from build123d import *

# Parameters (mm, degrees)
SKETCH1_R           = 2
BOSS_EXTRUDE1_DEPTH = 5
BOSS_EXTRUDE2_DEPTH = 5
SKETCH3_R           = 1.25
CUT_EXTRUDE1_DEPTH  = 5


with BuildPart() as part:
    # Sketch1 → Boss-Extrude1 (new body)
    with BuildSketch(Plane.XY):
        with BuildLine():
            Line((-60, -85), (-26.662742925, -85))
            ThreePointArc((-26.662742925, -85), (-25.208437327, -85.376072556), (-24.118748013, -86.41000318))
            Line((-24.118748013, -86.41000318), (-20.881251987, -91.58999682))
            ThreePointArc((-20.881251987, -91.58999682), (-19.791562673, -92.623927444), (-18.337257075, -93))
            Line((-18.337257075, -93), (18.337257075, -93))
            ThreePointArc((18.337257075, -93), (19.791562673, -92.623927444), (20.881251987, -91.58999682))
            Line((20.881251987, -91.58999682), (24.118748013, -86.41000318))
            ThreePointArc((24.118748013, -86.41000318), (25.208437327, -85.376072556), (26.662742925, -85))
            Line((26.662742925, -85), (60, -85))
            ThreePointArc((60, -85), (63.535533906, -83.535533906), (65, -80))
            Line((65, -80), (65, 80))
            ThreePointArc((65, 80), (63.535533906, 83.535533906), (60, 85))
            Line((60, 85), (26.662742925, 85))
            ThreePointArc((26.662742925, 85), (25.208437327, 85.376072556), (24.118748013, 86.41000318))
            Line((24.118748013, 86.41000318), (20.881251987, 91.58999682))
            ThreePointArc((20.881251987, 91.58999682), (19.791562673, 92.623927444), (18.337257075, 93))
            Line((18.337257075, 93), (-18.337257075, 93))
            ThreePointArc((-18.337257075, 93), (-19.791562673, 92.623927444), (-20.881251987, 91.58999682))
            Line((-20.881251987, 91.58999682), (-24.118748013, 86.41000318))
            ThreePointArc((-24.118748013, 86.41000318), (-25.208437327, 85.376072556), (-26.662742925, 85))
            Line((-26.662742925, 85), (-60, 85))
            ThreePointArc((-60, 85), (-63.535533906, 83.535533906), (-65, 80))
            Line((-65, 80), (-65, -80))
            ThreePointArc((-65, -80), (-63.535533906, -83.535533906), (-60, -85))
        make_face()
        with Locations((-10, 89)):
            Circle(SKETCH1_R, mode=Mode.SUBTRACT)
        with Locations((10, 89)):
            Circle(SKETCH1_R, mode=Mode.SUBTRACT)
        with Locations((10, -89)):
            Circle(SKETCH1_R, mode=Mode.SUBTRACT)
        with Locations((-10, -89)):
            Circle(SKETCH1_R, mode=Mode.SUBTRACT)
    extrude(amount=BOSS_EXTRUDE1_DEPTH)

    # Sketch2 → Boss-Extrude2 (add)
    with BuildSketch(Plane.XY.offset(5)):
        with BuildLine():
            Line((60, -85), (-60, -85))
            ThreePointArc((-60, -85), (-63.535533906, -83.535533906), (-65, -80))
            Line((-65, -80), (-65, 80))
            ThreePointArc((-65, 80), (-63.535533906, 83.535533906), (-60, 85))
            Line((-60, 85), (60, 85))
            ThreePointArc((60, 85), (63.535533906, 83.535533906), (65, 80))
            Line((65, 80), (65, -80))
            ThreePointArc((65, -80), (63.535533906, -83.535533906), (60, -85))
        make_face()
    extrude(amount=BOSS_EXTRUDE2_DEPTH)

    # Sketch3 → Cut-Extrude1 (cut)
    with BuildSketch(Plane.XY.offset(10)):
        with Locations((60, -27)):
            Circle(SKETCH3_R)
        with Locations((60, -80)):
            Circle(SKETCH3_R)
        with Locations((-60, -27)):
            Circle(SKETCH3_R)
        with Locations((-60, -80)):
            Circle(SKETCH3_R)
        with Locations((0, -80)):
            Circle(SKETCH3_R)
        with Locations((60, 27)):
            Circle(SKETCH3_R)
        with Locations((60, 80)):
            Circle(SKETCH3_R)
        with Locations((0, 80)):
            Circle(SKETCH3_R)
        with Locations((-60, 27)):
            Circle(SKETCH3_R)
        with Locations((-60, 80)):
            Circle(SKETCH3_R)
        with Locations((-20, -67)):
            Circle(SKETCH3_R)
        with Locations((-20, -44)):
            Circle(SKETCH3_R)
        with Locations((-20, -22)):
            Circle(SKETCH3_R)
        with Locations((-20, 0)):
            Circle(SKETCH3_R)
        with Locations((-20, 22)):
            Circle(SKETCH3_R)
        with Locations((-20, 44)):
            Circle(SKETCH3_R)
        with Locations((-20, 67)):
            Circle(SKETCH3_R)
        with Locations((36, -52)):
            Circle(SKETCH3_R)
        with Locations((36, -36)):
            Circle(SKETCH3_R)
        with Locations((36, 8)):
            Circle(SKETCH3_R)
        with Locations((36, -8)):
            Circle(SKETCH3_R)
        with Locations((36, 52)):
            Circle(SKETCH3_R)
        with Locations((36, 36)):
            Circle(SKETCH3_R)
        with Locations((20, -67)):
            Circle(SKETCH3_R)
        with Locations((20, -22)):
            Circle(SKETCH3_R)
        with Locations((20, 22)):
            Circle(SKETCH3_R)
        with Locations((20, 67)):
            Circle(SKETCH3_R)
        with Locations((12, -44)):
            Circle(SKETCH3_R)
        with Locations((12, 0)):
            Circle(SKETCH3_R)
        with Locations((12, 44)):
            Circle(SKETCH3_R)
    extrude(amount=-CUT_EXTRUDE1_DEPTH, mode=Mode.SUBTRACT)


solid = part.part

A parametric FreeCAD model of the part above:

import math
import FreeCAD as App
import Part
import Sketcher

doc = App.newDocument("Part")
body = doc.addObject("PartDesign::Body", "Body")

# Sketch on XY plane
sketch1 = doc.addObject("Sketcher::SketchObject", "Sketch")
body.addObject(sketch1)
sketch1.AttachmentSupport = (doc.XY_Plane, [""])
sketch1.MapMode = "FlatFace"
sketch1.addGeometry([
    Part.LineSegment(App.Vector(-60, -85, 0), App.Vector(-26.7, -85, 0)),  # 0
    Part.ArcOfCircle(Part.Circle(App.Vector(-26.7, -88, 0), App.Vector(0, 0, 1), 3), math.radians(32), math.radians(90)),  # 1
    Part.LineSegment(App.Vector(-24.1, -86.4, 0), App.Vector(-20.9, -91.6, 0)),  # 2
    Part.ArcOfCircle(Part.Circle(App.Vector(-18.3, -90, 0), App.Vector(0, 0, 1), 3), math.radians(-148), math.radians(-90)),  # 3
    Part.LineSegment(App.Vector(-18.3, -93, 0), App.Vector(18.3, -93, 0)),  # 4
    Part.ArcOfCircle(Part.Circle(App.Vector(18.3, -90, 0), App.Vector(0, 0, 1), 3), math.radians(-90), math.radians(-32)),  # 5
    Part.LineSegment(App.Vector(20.9, -91.6, 0), App.Vector(24.1, -86.4, 0)),  # 6
    Part.ArcOfCircle(Part.Circle(App.Vector(26.7, -88, 0), App.Vector(0, 0, 1), 3), math.radians(90), math.radians(148)),  # 7
    Part.LineSegment(App.Vector(26.7, -85, 0), App.Vector(60, -85, 0)),  # 8
    Part.ArcOfCircle(Part.Circle(App.Vector(60, -80, 0), App.Vector(0, 0, 1), 5), math.radians(-90), math.radians(0)),  # 9
    Part.LineSegment(App.Vector(65, -80, 0), App.Vector(65, 80, 0)),  # 10
    Part.ArcOfCircle(Part.Circle(App.Vector(60, 80, 0), App.Vector(0, 0, 1), 5), math.radians(0), math.radians(90)),  # 11
    Part.LineSegment(App.Vector(60, 85, 0), App.Vector(26.7, 85, 0)),  # 12
    Part.ArcOfCircle(Part.Circle(App.Vector(26.7, 88, 0), App.Vector(0, 0, 1), 3), math.radians(-148), math.radians(-90)),  # 13
    Part.LineSegment(App.Vector(24.1, 86.4, 0), App.Vector(20.9, 91.6, 0)),  # 14
    Part.ArcOfCircle(Part.Circle(App.Vector(18.3, 90, 0), App.Vector(0, 0, 1), 3), math.radians(32), math.radians(90)),  # 15
    Part.LineSegment(App.Vector(18.3, 93, 0), App.Vector(-18.3, 93, 0)),  # 16
    Part.ArcOfCircle(Part.Circle(App.Vector(-18.3, 90, 0), App.Vector(0, 0, 1), 3), math.radians(90), math.radians(148)),  # 17
    Part.LineSegment(App.Vector(-20.9, 91.6, 0), App.Vector(-24.1, 86.4, 0)),  # 18
    Part.ArcOfCircle(Part.Circle(App.Vector(-26.7, 88, 0), App.Vector(0, 0, 1), 3), math.radians(-90), math.radians(-32)),  # 19
    Part.LineSegment(App.Vector(-26.7, 85, 0), App.Vector(-60, 85, 0)),  # 20
    Part.ArcOfCircle(Part.Circle(App.Vector(-60, 80, 0), App.Vector(0, 0, 1), 5), math.radians(90), math.radians(180)),  # 21
    Part.LineSegment(App.Vector(-65, 80, 0), App.Vector(-65, -80, 0)),  # 22
    Part.ArcOfCircle(Part.Circle(App.Vector(-60, -80, 0), App.Vector(0, 0, 1), 5), math.radians(180), math.radians(270)),  # 23
    Part.Circle(App.Vector(-10, -89, 0), App.Vector(0, 0, 1), 2),  # 24
    Part.Circle(App.Vector(10, -89, 0), App.Vector(0, 0, 1), 2),  # 25
    Part.Circle(App.Vector(-10, 89, 0), App.Vector(0, 0, 1), 2),  # 26
    Part.Circle(App.Vector(10, 89, 0), App.Vector(0, 0, 1), 2),  # 27
], False)
sketch1.addConstraint([
    Sketcher.Constraint("Tangent", 0, 2, 1, 2),
    Sketcher.Constraint("Tangent", 1, 1, 2, 1),
    Sketcher.Constraint("Tangent", 2, 2, 3, 1),
    Sketcher.Constraint("Tangent", 3, 2, 4, 1),
    Sketcher.Constraint("Tangent", 4, 2, 5, 1),
    Sketcher.Constraint("Tangent", 5, 2, 6, 1),
    Sketcher.Constraint("Tangent", 6, 2, 7, 2),
    Sketcher.Constraint("Tangent", 7, 1, 8, 1),
    Sketcher.Constraint("Tangent", 8, 2, 9, 1),
    Sketcher.Constraint("Tangent", 9, 2, 10, 1),
    Sketcher.Constraint("Tangent", 10, 2, 11, 1),
    Sketcher.Constraint("Tangent", 11, 2, 12, 1),
    Sketcher.Constraint("Tangent", 12, 2, 13, 2),
    Sketcher.Constraint("Tangent", 13, 1, 14, 1),
    Sketcher.Constraint("Tangent", 14, 2, 15, 1),
    Sketcher.Constraint("Tangent", 15, 2, 16, 1),
    Sketcher.Constraint("Tangent", 16, 2, 17, 1),
    Sketcher.Constraint("Tangent", 17, 2, 18, 1),
    Sketcher.Constraint("Tangent", 18, 2, 19, 2),
    Sketcher.Constraint("Tangent", 19, 1, 20, 1),
    Sketcher.Constraint("Tangent", 20, 2, 21, 1),
    Sketcher.Constraint("Tangent", 21, 2, 22, 1),
    Sketcher.Constraint("Tangent", 22, 2, 23, 1),
    Sketcher.Constraint("Tangent", 23, 2, 0, 1),
    Sketcher.Constraint("Horizontal", 0),
    Sketcher.Constraint("Horizontal", 4),
    Sketcher.Constraint("Horizontal", 8),
    Sketcher.Constraint("Vertical", 10),
    Sketcher.Constraint("Horizontal", 12),
    Sketcher.Constraint("Horizontal", 16),
    Sketcher.Constraint("Horizontal", 20),
    Sketcher.Constraint("Vertical", 22),
    Sketcher.Constraint("Equal", 1, 3),
    Sketcher.Constraint("Equal", 3, 5),
    Sketcher.Constraint("Equal", 5, 7),
    Sketcher.Constraint("Equal", 9, 11),
    Sketcher.Constraint("Equal", 7, 13),
    Sketcher.Constraint("Equal", 13, 15),
    Sketcher.Constraint("Equal", 15, 17),
    Sketcher.Constraint("Equal", 17, 19),
    Sketcher.Constraint("Equal", 11, 21),
    Sketcher.Constraint("Equal", 21, 23),
    Sketcher.Constraint("Equal", 24, 25),
    Sketcher.Constraint("Equal", 25, 26),
    Sketcher.Constraint("Equal", 26, 27),
    Sketcher.Constraint("Symmetric", 1, 3, 13, 3, -1, 1),
    Sketcher.Constraint("Symmetric", 3, 3, 15, 3, -1, 1),
    Sketcher.Constraint("Symmetric", 7, 3, 19, 3, -1, 1),
    Sketcher.Constraint("Symmetric", 25, 3, 26, 3, -1, 1),
    Sketcher.Constraint("Symmetric", 24, 3, 27, 3, -1, 1),
    Sketcher.Constraint("Symmetric", 1, 3, 7, 3, -2),
    Sketcher.Constraint("Symmetric", 24, 3, 25, 3, -2),
    Sketcher.Constraint("Parallel", 6, 18),
    Sketcher.Constraint("Horizontal", 2, 2, 5, 2),
    Sketcher.Constraint("Equal", 0, 8),
    Sketcher.Constraint("Diameter", 24, 4.0),
    Sketcher.Constraint("Radius", 1, 3.0),
    Sketcher.Constraint("Radius", 9, 5.0),
    Sketcher.Constraint("DistanceY", 10, 1, 10, 2, 160.0),
    Sketcher.Constraint("DistanceY", 3, 3, -1, 1, 90.0),
    Sketcher.Constraint("DistanceX", -1, 1, 9, 3, 60.0),
    Sketcher.Constraint("DistanceX", 24, 3, -1, 1, 10.0),
    Sketcher.Constraint("DistanceY", 24, 3, -1, 1, 89.0),
    Sketcher.Constraint("DistanceX", 1, 3, 5, 3, 45.0),
    Sketcher.Constraint("DistanceX", 0, 1, 0, 2, 33.337257),
])
pad1 = doc.addObject("PartDesign::Pad", "Pad")
body.addObject(pad1)
pad1.Profile = sketch1
pad1.Length = 5

# Sketch on XY plane
sketch2 = doc.addObject("Sketcher::SketchObject", "Sketch001")
body.addObject(sketch2)
sketch2.AttachmentSupport = (doc.XY_Plane, [""])
sketch2.MapMode = "FlatFace"
sketch2.AttachmentOffset = App.Placement(App.Vector(0, 0, 5), App.Rotation())
sketch2.addGeometry([
    Part.LineSegment(App.Vector(-60, -85, 0), App.Vector(60, -85, 0)),  # 0
    Part.ArcOfCircle(Part.Circle(App.Vector(60, -80, 0), App.Vector(0, 0, 1), 5), math.radians(-90), math.radians(0)),  # 1
    Part.LineSegment(App.Vector(65, -80, 0), App.Vector(65, 80, 0)),  # 2
    Part.ArcOfCircle(Part.Circle(App.Vector(60, 80, 0), App.Vector(0, 0, 1), 5), math.radians(0), math.radians(90)),  # 3
    Part.LineSegment(App.Vector(60, 85, 0), App.Vector(-60, 85, 0)),  # 4
    Part.ArcOfCircle(Part.Circle(App.Vector(-60, 80, 0), App.Vector(0, 0, 1), 5), math.radians(90), math.radians(180)),  # 5
    Part.LineSegment(App.Vector(-65, 80, 0), App.Vector(-65, -80, 0)),  # 6
    Part.ArcOfCircle(Part.Circle(App.Vector(-60, -80, 0), App.Vector(0, 0, 1), 5), math.radians(180), math.radians(270)),  # 7
], False)
sketch2.addConstraint([
    Sketcher.Constraint("Tangent", 0, 2, 1, 1),
    Sketcher.Constraint("Tangent", 1, 2, 2, 1),
    Sketcher.Constraint("Tangent", 2, 2, 3, 1),
    Sketcher.Constraint("Tangent", 3, 2, 4, 1),
    Sketcher.Constraint("Tangent", 4, 2, 5, 1),
    Sketcher.Constraint("Tangent", 5, 2, 6, 1),
    Sketcher.Constraint("Tangent", 6, 2, 7, 1),
    Sketcher.Constraint("Tangent", 7, 2, 0, 1),
    Sketcher.Constraint("Horizontal", 0),
    Sketcher.Constraint("Vertical", 2),
    Sketcher.Constraint("Horizontal", 4),
    Sketcher.Constraint("Vertical", 6),
    Sketcher.Constraint("Equal", 1, 3),
    Sketcher.Constraint("Equal", 3, 5),
    Sketcher.Constraint("Equal", 5, 7),
    Sketcher.Constraint("Symmetric", 1, 3, 5, 3, -1, 1),
    Sketcher.Constraint("Radius", 1, 5.0),
    Sketcher.Constraint("DistanceX", 0, 1, 0, 2, 120.0),
    Sketcher.Constraint("DistanceY", 2, 1, 2, 2, 160.0),
])
pad2 = doc.addObject("PartDesign::Pad", "Pad001")
body.addObject(pad2)
pad2.Profile = sketch2
pad2.Length = 5

# Sketch on XY plane
sketch3 = doc.addObject("Sketcher::SketchObject", "Sketch002")
body.addObject(sketch3)
sketch3.AttachmentSupport = (doc.XY_Plane, [""])
sketch3.MapMode = "FlatFace"
sketch3.AttachmentOffset = App.Placement(App.Vector(0, 0, 10), App.Rotation())
sketch3.addGeometry([
    Part.Circle(App.Vector(60, -27, 0), App.Vector(0, 0, 1), 1.2),  # 0
    Part.Circle(App.Vector(60, -80, 0), App.Vector(0, 0, 1), 1.2),  # 1
    Part.Circle(App.Vector(-60, -27, 0), App.Vector(0, 0, 1), 1.2),  # 2
    Part.Circle(App.Vector(-60, -80, 0), App.Vector(0, 0, 1), 1.2),  # 3
    Part.Circle(App.Vector(0, -80, 0), App.Vector(0, 0, 1), 1.2),  # 4
    Part.Circle(App.Vector(60, 27, 0), App.Vector(0, 0, 1), 1.2),  # 5
    Part.Circle(App.Vector(60, 80, 0), App.Vector(0, 0, 1), 1.2),  # 6
    Part.Circle(App.Vector(0, 80, 0), App.Vector(0, 0, 1), 1.2),  # 7
    Part.Circle(App.Vector(-60, 27, 0), App.Vector(0, 0, 1), 1.2),  # 8
    Part.Circle(App.Vector(-60, 80, 0), App.Vector(0, 0, 1), 1.2),  # 9
    Part.Circle(App.Vector(-20, -67, 0), App.Vector(0, 0, 1), 1.2),  # 10
    Part.Circle(App.Vector(-20, -44, 0), App.Vector(0, 0, 1), 1.2),  # 11
    Part.Circle(App.Vector(-20, -22, 0), App.Vector(0, 0, 1), 1.2),  # 12
    Part.Circle(App.Vector(-20, 0, 0), App.Vector(0, 0, 1), 1.2),  # 13
    Part.Circle(App.Vector(-20, 22, 0), App.Vector(0, 0, 1), 1.2),  # 14
    Part.Circle(App.Vector(-20, 44, 0), App.Vector(0, 0, 1), 1.2),  # 15
    Part.Circle(App.Vector(-20, 67, 0), App.Vector(0, 0, 1), 1.2),  # 16
    Part.Circle(App.Vector(36, -52, 0), App.Vector(0, 0, 1), 1.2),  # 17
    Part.Circle(App.Vector(36, -36, 0), App.Vector(0, 0, 1), 1.2),  # 18
    Part.Circle(App.Vector(36, 8, 0), App.Vector(0, 0, 1), 1.2),  # 19
    Part.Circle(App.Vector(36, -8, 0), App.Vector(0, 0, 1), 1.2),  # 20
    Part.Circle(App.Vector(36, 52, 0), App.Vector(0, 0, 1), 1.2),  # 21
    Part.Circle(App.Vector(36, 36, 0), App.Vector(0, 0, 1), 1.2),  # 22
    Part.Circle(App.Vector(20, -67, 0), App.Vector(0, 0, 1), 1.2),  # 23
    Part.Circle(App.Vector(20, -22, 0), App.Vector(0, 0, 1), 1.2),  # 24
    Part.Circle(App.Vector(20, 22, 0), App.Vector(0, 0, 1), 1.2),  # 25
    Part.Circle(App.Vector(20, 67, 0), App.Vector(0, 0, 1), 1.2),  # 26
    Part.Circle(App.Vector(12, -44, 0), App.Vector(0, 0, 1), 1.2),  # 27
    Part.Circle(App.Vector(12, 0, 0), App.Vector(0, 0, 1), 1.2),  # 28
    Part.Circle(App.Vector(12, 44, 0), App.Vector(0, 0, 1), 1.2),  # 29
], False)
sketch3.addConstraint([
    Sketcher.Constraint("Equal", 0, 1),
    Sketcher.Constraint("Equal", 1, 2),
    Sketcher.Constraint("Equal", 2, 3),
    Sketcher.Constraint("Equal", 3, 4),
    Sketcher.Constraint("Equal", 4, 5),
    Sketcher.Constraint("Equal", 5, 6),
    Sketcher.Constraint("Equal", 6, 7),
    Sketcher.Constraint("Equal", 7, 8),
    Sketcher.Constraint("Equal", 8, 9),
    Sketcher.Constraint("Equal", 9, 10),
    Sketcher.Constraint("Equal", 10, 11),
    Sketcher.Constraint("Equal", 11, 12),
    Sketcher.Constraint("Equal", 12, 13),
    Sketcher.Constraint("Equal", 13, 14),
    Sketcher.Constraint("Equal", 14, 15),
    Sketcher.Constraint("Equal", 15, 16),
    Sketcher.Constraint("Equal", 16, 17),
    Sketcher.Constraint("Equal", 17, 18),
    Sketcher.Constraint("Equal", 18, 19),
    Sketcher.Constraint("Equal", 19, 20),
    Sketcher.Constraint("Equal", 20, 21),
    Sketcher.Constraint("Equal", 21, 22),
    Sketcher.Constraint("Equal", 22, 23),
    Sketcher.Constraint("Equal", 23, 24),
    Sketcher.Constraint("Equal", 24, 25),
    Sketcher.Constraint("Equal", 25, 26),
    Sketcher.Constraint("Equal", 26, 27),
    Sketcher.Constraint("Equal", 27, 28),
    Sketcher.Constraint("Equal", 28, 29),
    Sketcher.Constraint("Symmetric", 2, 3, 5, 3, -1, 1),
    Sketcher.Constraint("Symmetric", 3, 3, 6, 3, -1, 1),
    Sketcher.Constraint("Symmetric", 4, 3, 7, 3, -1, 1),
    Sketcher.Constraint("Symmetric", 0, 3, 8, 3, -1, 1),
    Sketcher.Constraint("Symmetric", 1, 3, 9, 3, -1, 1),
    Sketcher.Constraint("Symmetric", 16, 3, 23, 3, -1, 1),
    Sketcher.Constraint("Symmetric", 14, 3, 24, 3, -1, 1),
    Sketcher.Constraint("Symmetric", 12, 3, 25, 3, -1, 1),
    Sketcher.Constraint("Symmetric", 10, 3, 26, 3, -1, 1),
    Sketcher.Constraint("Symmetric", 0, 3, 2, 3, -2),
    Sketcher.Constraint("Symmetric", 1, 3, 3, 3, -2),
    Sketcher.Constraint("Symmetric", 10, 3, 23, 3, -2),
    Sketcher.Constraint("Symmetric", 12, 3, 24, 3, -2),
    Sketcher.Constraint("Symmetric", 11, 3, 15, 3, -1),
    Sketcher.Constraint("Symmetric", 19, 3, 20, 3, -1),
    Sketcher.Constraint("Symmetric", 17, 3, 21, 3, -1),
    Sketcher.Constraint("Symmetric", 18, 3, 22, 3, -1),
    Sketcher.Constraint("Symmetric", 27, 3, 29, 3, -1),
    Sketcher.Constraint("PointOnObject", 4, 3, -2),
    Sketcher.Constraint("PointOnObject", 13, 3, -1),
    Sketcher.Constraint("PointOnObject", 28, 3, -1),
    Sketcher.Constraint("Horizontal", 3, 3, 4, 3),
    Sketcher.Constraint("Horizontal", 11, 3, 27, 3),
    Sketcher.Constraint("Vertical", 0, 3, 1, 3),
    Sketcher.Constraint("Vertical", 10, 3, 11, 3),
    Sketcher.Constraint("Vertical", 11, 3, 12, 3),
    Sketcher.Constraint("Vertical", 12, 3, 13, 3),
    Sketcher.Constraint("Vertical", 17, 3, 18, 3),
    Sketcher.Constraint("Vertical", 18, 3, 19, 3),
    Sketcher.Constraint("Vertical", 27, 3, 28, 3),
    Sketcher.Constraint("Diameter", 0, 2.5),
    Sketcher.Constraint("DistanceX", -1, 1, 0, 3, 60.0),
    Sketcher.Constraint("DistanceY", 0, 3, -1, 1, 27.0),
    Sketcher.Constraint("DistanceY", 1, 3, -1, 1, 80.0),
    Sketcher.Constraint("DistanceX", 10, 3, -1, 1, 20.0),
    Sketcher.Constraint("DistanceY", 10, 3, -1, 1, 67.0),
    Sketcher.Constraint("DistanceY", 11, 3, -1, 1, 44.0),
    Sketcher.Constraint("DistanceY", 12, 3, -1, 1, 22.0),
    Sketcher.Constraint("DistanceX", -1, 1, 17, 3, 36.0),
    Sketcher.Constraint("DistanceY", 17, 3, -1, 1, 52.0),
    Sketcher.Constraint("DistanceY", 18, 3, -1, 1, 36.0),
    Sketcher.Constraint("DistanceY", -1, 1, 19, 3, 8.0),
    Sketcher.Constraint("DistanceX", -1, 1, 27, 3, 12.0),
])
pocket1 = doc.addObject("PartDesign::Pocket", "Pocket")
body.addObject(pocket1)
pocket1.Profile = sketch3
pocket1.Length = 5

doc.recompute()
